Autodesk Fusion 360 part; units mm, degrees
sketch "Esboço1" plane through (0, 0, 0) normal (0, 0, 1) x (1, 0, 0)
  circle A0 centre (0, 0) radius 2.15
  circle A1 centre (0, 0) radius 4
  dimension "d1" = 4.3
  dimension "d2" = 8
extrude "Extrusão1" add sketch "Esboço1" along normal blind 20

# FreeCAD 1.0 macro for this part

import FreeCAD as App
import Part
import Sketcher
from FreeCAD import Vector
Q = App.Units.Quantity

doc = App.newDocument("Part")
body = doc.addObject("PartDesign::Body", "Body")

# Sketch on XY plane
sketch1 = body.newObject("Sketcher::SketchObject", "Sketch")
sketch1.AttachmentSupport = (doc.getObject("XY_Plane"), [""])
sketch1.MapMode = "FlatFace"
sketch1.addGeometry(Part.Circle(Vector(0, 0, 0), Vector(0, 0, 1), 4), False)
sketch1.addGeometry(Part.Circle(Vector(0, 0, 0), Vector(0, 0, 1), 2.15), False)
sketch1.addConstraint(Sketcher.Constraint("Coincident", 0, 3, -1, 1))
sketch1.addConstraint(Sketcher.Constraint("Coincident", 1, 3, -1, 1))
sketch1.addConstraint(Sketcher.Constraint("Diameter", 0, Q("8 mm")))
sketch1.addConstraint(Sketcher.Constraint("Diameter", 1, Q("4.3 mm")))
pad1 = body.newObject("PartDesign::Pad", "Pad")
pad1.Profile = sketch1
pad1.Length = 20

doc.recompute()
